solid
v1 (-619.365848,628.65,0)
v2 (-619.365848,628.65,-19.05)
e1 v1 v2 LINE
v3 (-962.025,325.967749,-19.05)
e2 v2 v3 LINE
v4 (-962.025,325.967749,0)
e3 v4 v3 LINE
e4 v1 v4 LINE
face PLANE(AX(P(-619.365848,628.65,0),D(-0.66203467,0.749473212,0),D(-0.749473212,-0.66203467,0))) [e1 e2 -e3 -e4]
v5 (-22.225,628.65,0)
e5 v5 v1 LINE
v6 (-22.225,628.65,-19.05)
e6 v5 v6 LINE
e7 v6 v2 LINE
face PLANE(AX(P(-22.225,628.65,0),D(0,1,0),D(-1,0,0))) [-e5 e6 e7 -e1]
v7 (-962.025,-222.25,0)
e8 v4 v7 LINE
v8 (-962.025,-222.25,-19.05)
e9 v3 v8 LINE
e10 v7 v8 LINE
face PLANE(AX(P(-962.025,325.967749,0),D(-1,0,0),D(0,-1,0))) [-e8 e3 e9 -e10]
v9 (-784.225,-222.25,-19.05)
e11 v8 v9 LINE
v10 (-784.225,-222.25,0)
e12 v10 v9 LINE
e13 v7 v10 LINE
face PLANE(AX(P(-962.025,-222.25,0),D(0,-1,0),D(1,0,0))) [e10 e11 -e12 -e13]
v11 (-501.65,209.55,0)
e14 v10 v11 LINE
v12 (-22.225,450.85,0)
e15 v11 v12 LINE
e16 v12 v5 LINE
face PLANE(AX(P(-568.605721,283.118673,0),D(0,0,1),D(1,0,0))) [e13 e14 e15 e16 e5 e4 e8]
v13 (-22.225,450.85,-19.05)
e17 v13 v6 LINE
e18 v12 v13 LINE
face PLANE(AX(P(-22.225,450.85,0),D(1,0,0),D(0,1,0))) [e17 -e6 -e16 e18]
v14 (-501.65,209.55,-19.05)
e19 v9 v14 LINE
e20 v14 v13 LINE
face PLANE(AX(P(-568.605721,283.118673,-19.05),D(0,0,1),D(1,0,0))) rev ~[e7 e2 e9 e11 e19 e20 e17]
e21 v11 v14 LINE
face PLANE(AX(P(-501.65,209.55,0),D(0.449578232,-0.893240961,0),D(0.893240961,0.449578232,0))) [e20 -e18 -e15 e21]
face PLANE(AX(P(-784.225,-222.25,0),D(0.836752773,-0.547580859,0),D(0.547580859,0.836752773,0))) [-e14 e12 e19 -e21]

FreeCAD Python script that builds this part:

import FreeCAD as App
import Part
import Sketcher
from FreeCAD import Vector
Q = App.Units.Quantity


def add_polygon(sketch, points):
    """Adds a closed chain of lines whose ends are joined by coincident constraints."""
    first, n = sketch.GeometryCount, len(points)
    for a, b in zip(points, points[1:] + points[:1]):
        sketch.addGeometry(Part.LineSegment(App.Vector(*a, 0), App.Vector(*b, 0)), False)
    for i in range(n):
        sketch.addConstraint(Sketcher.Constraint("Coincident", first + i, 2, first + (i + 1) % n, 1))

doc = App.newDocument("Part")
params = doc.addObject("Spreadsheet::Sheet", "Params")
for row, (alias, value) in enumerate([
    ("sketch1_width", "7 in"),
    ("sketch1_length", "18 in"),
    ("pad1_length", "0.75 in"),
], start=1):
    params.set(f"A{row}", alias)
    params.set(f"B{row}", "=" + value)
    params.setAlias(f"B{row}", alias)

body = doc.addObject("PartDesign::Body", "Body")

# Sketch on XY plane
sketch1 = doc.addObject("Sketcher::SketchObject", "Sketch")
body.addObject(sketch1)
sketch1.AttachmentSupport = (doc.XY_Plane, [""])
sketch1.MapMode = "FlatFace"
add_polygon(sketch1, [(-962, 326), (-962, -222), (-784, -222), (-502, 210), (-22, 451), (-22, 629), (-619, 629)])  # lines 0-6
sketch1.addConstraint([
    Sketcher.Constraint("Vertical", 0),
    Sketcher.Constraint("Horizontal", 1),
    Sketcher.Constraint("Vertical", 4),
    Sketcher.Constraint("Horizontal", 5),
    Sketcher.Constraint("Equal", 1, 4),
    Sketcher.Constraint("DistanceX", 1, 1, 1, 2, Q("7 in")),
    Sketcher.Constraint("Distance", 6, Q("18 in")),
    Sketcher.Constraint("DistanceY", 1, 2, 2, 2, Q("17 in")),
    Sketcher.Constraint("DistanceX", 1, 2, 3, 2, Q("30 in")),
    Sketcher.Constraint("DistanceY", 2, 2, 3, 2, Q("9.5 in")),
    Sketcher.Constraint("DistanceY", 0, 2, -1, 1, Q("8.75 in")),
    Sketcher.Constraint("DistanceX", 2, 2, -1, 1, Q("19.75 in")),
    Sketcher.Constraint("DistanceX", 0, 2, -1, 1, Q("37.875 in")),
    Sketcher.Constraint("DistanceX", 5, 2, 5, 1, Q("597.140848 mm")),
])
sketch1.setExpression("Constraints[12]", "Params.sketch1_width")
sketch1.setExpression("Constraints[13]", "Params.sketch1_length")
pad1 = doc.addObject("PartDesign::Pad", "Pad")
body.addObject(pad1)
pad1.Profile = sketch1
pad1.setExpression("Length", "Params.pad1_length")
pad1.Reversed = True

doc.recompute()
